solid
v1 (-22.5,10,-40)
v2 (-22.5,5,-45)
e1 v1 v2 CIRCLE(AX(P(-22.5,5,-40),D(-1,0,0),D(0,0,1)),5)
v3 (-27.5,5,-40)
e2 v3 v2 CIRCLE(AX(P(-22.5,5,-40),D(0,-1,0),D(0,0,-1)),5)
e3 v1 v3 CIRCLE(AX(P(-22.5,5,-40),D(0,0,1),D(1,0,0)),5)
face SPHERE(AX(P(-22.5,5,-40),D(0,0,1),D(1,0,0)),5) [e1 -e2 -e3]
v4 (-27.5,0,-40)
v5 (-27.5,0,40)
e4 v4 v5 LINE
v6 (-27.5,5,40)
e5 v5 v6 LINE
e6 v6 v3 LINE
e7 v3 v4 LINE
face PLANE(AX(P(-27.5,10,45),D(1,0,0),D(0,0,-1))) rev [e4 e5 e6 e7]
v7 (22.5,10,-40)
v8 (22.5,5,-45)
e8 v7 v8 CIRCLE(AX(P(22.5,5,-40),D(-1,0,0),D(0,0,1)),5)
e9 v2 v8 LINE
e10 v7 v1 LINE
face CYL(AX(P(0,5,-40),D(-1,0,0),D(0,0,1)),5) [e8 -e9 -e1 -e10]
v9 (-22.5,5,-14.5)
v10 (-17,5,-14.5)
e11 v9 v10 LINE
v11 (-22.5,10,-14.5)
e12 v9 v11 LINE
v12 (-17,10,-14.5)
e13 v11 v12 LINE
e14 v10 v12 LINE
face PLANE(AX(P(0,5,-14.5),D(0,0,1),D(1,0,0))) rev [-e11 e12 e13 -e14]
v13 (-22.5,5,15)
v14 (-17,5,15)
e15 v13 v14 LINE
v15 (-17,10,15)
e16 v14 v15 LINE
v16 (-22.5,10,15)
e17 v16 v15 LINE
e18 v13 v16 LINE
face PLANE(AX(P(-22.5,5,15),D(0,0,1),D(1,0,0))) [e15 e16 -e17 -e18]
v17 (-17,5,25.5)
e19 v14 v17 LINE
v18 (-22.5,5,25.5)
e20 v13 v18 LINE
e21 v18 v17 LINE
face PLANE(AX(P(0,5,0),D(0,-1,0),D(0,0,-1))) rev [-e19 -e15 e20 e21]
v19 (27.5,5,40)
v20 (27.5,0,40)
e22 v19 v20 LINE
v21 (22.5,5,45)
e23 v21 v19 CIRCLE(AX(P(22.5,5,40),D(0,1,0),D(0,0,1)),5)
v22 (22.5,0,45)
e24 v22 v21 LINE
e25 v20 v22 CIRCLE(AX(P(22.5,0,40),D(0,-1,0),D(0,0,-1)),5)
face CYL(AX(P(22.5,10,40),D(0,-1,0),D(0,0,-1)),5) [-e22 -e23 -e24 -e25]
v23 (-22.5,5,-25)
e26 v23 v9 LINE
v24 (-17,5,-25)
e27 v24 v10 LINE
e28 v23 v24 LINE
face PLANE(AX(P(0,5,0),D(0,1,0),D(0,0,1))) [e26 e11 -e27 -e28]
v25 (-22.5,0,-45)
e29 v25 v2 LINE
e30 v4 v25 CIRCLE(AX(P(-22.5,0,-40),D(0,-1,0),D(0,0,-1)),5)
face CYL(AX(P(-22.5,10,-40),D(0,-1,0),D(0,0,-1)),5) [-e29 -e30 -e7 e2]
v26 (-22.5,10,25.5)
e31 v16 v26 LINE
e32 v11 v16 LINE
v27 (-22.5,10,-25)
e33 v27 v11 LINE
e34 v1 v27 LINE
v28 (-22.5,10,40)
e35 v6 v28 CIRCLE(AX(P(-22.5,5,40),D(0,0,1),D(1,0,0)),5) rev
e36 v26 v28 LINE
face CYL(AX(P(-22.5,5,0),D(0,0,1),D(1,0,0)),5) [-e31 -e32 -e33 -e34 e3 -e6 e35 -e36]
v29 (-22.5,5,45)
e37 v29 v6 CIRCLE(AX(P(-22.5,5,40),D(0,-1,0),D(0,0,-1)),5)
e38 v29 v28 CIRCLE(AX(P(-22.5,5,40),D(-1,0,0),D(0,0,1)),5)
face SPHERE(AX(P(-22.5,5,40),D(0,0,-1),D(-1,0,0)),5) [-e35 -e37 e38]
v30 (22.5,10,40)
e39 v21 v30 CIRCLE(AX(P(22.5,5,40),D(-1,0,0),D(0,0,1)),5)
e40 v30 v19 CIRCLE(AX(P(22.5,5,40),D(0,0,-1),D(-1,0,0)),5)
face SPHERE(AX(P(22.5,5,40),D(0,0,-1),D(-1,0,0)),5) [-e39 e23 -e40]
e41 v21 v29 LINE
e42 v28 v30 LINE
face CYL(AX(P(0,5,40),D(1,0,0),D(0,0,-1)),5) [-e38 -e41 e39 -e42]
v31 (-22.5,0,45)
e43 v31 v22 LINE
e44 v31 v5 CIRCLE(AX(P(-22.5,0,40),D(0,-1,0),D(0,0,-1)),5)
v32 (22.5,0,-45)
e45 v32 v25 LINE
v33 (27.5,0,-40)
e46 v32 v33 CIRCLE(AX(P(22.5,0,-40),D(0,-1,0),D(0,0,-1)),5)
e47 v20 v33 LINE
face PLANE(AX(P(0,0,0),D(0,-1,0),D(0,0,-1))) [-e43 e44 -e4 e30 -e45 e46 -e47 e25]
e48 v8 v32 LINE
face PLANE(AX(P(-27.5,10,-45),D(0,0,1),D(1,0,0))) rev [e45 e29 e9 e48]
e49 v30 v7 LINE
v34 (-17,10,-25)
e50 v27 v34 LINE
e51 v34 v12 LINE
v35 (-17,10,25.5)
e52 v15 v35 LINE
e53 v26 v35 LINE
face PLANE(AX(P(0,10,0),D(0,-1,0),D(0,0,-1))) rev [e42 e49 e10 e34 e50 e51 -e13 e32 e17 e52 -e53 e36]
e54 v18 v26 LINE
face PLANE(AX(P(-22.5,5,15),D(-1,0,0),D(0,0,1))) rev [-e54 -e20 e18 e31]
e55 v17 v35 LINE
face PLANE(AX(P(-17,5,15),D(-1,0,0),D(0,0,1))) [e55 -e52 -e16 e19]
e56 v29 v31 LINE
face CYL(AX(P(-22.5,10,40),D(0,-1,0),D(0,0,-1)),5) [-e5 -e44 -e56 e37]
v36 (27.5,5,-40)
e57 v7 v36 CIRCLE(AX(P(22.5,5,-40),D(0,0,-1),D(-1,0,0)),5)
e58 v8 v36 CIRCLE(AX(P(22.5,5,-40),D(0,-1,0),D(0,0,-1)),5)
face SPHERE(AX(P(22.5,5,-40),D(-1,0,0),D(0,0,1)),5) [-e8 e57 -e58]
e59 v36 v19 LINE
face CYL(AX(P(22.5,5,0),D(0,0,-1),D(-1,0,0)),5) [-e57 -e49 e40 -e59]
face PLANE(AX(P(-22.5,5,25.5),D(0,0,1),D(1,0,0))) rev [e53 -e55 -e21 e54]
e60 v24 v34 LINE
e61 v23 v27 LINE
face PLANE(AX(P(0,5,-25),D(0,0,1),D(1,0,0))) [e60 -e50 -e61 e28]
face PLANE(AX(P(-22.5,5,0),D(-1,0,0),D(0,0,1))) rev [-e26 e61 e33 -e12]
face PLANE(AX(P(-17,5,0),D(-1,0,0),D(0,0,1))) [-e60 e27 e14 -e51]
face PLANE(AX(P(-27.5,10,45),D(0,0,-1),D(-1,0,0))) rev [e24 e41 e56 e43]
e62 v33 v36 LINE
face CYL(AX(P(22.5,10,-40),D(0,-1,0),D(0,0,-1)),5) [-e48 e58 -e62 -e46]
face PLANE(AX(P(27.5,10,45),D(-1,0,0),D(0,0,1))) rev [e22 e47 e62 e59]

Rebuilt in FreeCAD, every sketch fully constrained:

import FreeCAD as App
import Part
import Sketcher
from FreeCAD import Vector


def edges_at(feature, points):
    """Names of the edges that pass closest to the given points."""
    edges = feature.Shape.Edges
    near = lambda p: min(range(len(edges)), key=lambda i: edges[i].distToShape(Part.Vertex(*p))[0])
    return sorted({f"Edge{near(p) + 1}" for p in points})


def add_polygon(sketch, points):
    """Adds a closed chain of lines whose ends are joined by coincident constraints."""
    first, n = sketch.GeometryCount, len(points)
    for a, b in zip(points, points[1:] + points[:1]):
        sketch.addGeometry(Part.LineSegment(App.Vector(*a, 0), App.Vector(*b, 0)), False)
    for i in range(n):
        sketch.addConstraint(Sketcher.Constraint("Coincident", first + i, 2, first + (i + 1) % n, 1))

doc = App.newDocument("Part")
body = doc.addObject("PartDesign::Body", "Body")

# Sketch on XZ plane
sketch1 = doc.addObject("Sketcher::SketchObject", "Sketch")
body.addObject(sketch1)
sketch1.AttachmentSupport = (doc.XZ_Plane, [""])
sketch1.MapMode = "FlatFace"
add_polygon(sketch1, [(-27.5, -45), (-27.5, 45), (27.5, 45), (27.5, -45)])  # lines 0-3
sketch1.addConstraint(Sketcher.Constraint("Vertical", 0))
sketch1.addConstraint(Sketcher.Constraint("Horizontal", 1))
sketch1.addConstraint(Sketcher.Constraint("Vertical", 2))
sketch1.addConstraint(Sketcher.Constraint("Horizontal", 3))
sketch1.addConstraint(Sketcher.Constraint("Symmetric", 0, 2, 2, 2, -1, 1))
sketch1.addConstraint(Sketcher.Constraint("DistanceX", 1, 1, 1, 2, 55.0))
sketch1.addConstraint(Sketcher.Constraint("DistanceY", 0, 1, 0, 2, 90.0))
pad1 = doc.addObject("PartDesign::Pad", "Pad")
body.addObject(pad1)
pad1.Profile = sketch1
pad1.Length = 10
pad1.Reversed = True
doc.recompute()

fillet = doc.addObject("PartDesign::Fillet", "Fillet")
body.addObject(fillet)
fillet.Base = (pad1, edges_at(pad1, [(-27.5, 10, 0)]))
fillet.Radius = 5
doc.recompute()

fillet2 = doc.addObject("PartDesign::Fillet", "Fillet001")
body.addObject(fillet2)
fillet2.Base = (fillet, edges_at(fillet, [(-27.5, 2.5, -45), (-26.036, 8.536, -45), (2.5, 10, -45)]))
fillet2.Radius = 5
doc.recompute()

fillet3 = doc.addObject("PartDesign::Fillet", "Fillet002")
body.addObject(fillet3)
fillet3.Base = (fillet2, edges_at(fillet2, [(27.5, 2.5, -45), (27.5, 8.536, -43.536), (27.5, 10, 2.5)]))
fillet3.Radius = 5
doc.recompute()

fillet4 = doc.addObject("PartDesign::Fillet", "Fillet003")
body.addObject(fillet4)
fillet4.Base = (fillet3, edges_at(fillet3, [
    (0, 10, 45),
    (-27.5, 2.5, 45),
    (-26.036, 8.536, 45),
    (27.5, 2.5, 45),
    (26.036, 8.536, 45),
]))
fillet4.Radius = 5

# Sketch on XZ plane
sketch2 = doc.addObject("Sketcher::SketchObject", "Sketch001")
body.addObject(sketch2)
sketch2.AttachmentSupport = (doc.XZ_Plane, [""])
sketch2.MapMode = "FlatFace"
sketch2.AttachmentOffset = App.Placement(Vector(0, 0, -10), App.Rotation())
add_polygon(sketch2, [(-22.5, -25), (-22.5, -14.5), (-17, -14.5), (-17, -25)])  # lines 0-3
add_polygon(sketch2, [(-22.5, 15), (-22.5, 25.5), (-17, 25.5), (-17, 15)])  # lines 4-7
sketch2.addConstraint(Sketcher.Constraint("Vertical", 0))
sketch2.addConstraint(Sketcher.Constraint("Horizontal", 1))
sketch2.addConstraint(Sketcher.Constraint("Vertical", 2))
sketch2.addConstraint(Sketcher.Constraint("Horizontal", 3))
sketch2.addConstraint(Sketcher.Constraint("Vertical", 4))
sketch2.addConstraint(Sketcher.Constraint("Horizontal", 5))
sketch2.addConstraint(Sketcher.Constraint("Vertical", 6))
sketch2.addConstraint(Sketcher.Constraint("Horizontal", 7))
sketch2.addConstraint(Sketcher.Constraint("Vertical", 3, 2, 4, 2))
sketch2.addConstraint(Sketcher.Constraint("Vertical", 2, 2, 5, 2))
sketch2.addConstraint(Sketcher.Constraint("Equal", 2, 4))
sketch2.addConstraint(Sketcher.Constraint("DistanceX", 1, 1, 1, 2, 5.5))
sketch2.addConstraint(Sketcher.Constraint("DistanceY", 0, 1, 0, 2, 10.5))
sketch2.addConstraint(Sketcher.Constraint("DistanceX", 1, 2, -1, 1, 17.0))
sketch2.addConstraint(Sketcher.Constraint("DistanceY", 2, 2, -1, 1, 25.0))
sketch2.addConstraint(Sketcher.Constraint("DistanceY", -1, 1, 6, 2, 15.0))
pocket1 = doc.addObject("PartDesign::Pocket", "Pocket")
body.addObject(pocket1)
pocket1.Profile = sketch2
pocket1.Length = 5
pocket1.Reversed = True

doc.recompute()
